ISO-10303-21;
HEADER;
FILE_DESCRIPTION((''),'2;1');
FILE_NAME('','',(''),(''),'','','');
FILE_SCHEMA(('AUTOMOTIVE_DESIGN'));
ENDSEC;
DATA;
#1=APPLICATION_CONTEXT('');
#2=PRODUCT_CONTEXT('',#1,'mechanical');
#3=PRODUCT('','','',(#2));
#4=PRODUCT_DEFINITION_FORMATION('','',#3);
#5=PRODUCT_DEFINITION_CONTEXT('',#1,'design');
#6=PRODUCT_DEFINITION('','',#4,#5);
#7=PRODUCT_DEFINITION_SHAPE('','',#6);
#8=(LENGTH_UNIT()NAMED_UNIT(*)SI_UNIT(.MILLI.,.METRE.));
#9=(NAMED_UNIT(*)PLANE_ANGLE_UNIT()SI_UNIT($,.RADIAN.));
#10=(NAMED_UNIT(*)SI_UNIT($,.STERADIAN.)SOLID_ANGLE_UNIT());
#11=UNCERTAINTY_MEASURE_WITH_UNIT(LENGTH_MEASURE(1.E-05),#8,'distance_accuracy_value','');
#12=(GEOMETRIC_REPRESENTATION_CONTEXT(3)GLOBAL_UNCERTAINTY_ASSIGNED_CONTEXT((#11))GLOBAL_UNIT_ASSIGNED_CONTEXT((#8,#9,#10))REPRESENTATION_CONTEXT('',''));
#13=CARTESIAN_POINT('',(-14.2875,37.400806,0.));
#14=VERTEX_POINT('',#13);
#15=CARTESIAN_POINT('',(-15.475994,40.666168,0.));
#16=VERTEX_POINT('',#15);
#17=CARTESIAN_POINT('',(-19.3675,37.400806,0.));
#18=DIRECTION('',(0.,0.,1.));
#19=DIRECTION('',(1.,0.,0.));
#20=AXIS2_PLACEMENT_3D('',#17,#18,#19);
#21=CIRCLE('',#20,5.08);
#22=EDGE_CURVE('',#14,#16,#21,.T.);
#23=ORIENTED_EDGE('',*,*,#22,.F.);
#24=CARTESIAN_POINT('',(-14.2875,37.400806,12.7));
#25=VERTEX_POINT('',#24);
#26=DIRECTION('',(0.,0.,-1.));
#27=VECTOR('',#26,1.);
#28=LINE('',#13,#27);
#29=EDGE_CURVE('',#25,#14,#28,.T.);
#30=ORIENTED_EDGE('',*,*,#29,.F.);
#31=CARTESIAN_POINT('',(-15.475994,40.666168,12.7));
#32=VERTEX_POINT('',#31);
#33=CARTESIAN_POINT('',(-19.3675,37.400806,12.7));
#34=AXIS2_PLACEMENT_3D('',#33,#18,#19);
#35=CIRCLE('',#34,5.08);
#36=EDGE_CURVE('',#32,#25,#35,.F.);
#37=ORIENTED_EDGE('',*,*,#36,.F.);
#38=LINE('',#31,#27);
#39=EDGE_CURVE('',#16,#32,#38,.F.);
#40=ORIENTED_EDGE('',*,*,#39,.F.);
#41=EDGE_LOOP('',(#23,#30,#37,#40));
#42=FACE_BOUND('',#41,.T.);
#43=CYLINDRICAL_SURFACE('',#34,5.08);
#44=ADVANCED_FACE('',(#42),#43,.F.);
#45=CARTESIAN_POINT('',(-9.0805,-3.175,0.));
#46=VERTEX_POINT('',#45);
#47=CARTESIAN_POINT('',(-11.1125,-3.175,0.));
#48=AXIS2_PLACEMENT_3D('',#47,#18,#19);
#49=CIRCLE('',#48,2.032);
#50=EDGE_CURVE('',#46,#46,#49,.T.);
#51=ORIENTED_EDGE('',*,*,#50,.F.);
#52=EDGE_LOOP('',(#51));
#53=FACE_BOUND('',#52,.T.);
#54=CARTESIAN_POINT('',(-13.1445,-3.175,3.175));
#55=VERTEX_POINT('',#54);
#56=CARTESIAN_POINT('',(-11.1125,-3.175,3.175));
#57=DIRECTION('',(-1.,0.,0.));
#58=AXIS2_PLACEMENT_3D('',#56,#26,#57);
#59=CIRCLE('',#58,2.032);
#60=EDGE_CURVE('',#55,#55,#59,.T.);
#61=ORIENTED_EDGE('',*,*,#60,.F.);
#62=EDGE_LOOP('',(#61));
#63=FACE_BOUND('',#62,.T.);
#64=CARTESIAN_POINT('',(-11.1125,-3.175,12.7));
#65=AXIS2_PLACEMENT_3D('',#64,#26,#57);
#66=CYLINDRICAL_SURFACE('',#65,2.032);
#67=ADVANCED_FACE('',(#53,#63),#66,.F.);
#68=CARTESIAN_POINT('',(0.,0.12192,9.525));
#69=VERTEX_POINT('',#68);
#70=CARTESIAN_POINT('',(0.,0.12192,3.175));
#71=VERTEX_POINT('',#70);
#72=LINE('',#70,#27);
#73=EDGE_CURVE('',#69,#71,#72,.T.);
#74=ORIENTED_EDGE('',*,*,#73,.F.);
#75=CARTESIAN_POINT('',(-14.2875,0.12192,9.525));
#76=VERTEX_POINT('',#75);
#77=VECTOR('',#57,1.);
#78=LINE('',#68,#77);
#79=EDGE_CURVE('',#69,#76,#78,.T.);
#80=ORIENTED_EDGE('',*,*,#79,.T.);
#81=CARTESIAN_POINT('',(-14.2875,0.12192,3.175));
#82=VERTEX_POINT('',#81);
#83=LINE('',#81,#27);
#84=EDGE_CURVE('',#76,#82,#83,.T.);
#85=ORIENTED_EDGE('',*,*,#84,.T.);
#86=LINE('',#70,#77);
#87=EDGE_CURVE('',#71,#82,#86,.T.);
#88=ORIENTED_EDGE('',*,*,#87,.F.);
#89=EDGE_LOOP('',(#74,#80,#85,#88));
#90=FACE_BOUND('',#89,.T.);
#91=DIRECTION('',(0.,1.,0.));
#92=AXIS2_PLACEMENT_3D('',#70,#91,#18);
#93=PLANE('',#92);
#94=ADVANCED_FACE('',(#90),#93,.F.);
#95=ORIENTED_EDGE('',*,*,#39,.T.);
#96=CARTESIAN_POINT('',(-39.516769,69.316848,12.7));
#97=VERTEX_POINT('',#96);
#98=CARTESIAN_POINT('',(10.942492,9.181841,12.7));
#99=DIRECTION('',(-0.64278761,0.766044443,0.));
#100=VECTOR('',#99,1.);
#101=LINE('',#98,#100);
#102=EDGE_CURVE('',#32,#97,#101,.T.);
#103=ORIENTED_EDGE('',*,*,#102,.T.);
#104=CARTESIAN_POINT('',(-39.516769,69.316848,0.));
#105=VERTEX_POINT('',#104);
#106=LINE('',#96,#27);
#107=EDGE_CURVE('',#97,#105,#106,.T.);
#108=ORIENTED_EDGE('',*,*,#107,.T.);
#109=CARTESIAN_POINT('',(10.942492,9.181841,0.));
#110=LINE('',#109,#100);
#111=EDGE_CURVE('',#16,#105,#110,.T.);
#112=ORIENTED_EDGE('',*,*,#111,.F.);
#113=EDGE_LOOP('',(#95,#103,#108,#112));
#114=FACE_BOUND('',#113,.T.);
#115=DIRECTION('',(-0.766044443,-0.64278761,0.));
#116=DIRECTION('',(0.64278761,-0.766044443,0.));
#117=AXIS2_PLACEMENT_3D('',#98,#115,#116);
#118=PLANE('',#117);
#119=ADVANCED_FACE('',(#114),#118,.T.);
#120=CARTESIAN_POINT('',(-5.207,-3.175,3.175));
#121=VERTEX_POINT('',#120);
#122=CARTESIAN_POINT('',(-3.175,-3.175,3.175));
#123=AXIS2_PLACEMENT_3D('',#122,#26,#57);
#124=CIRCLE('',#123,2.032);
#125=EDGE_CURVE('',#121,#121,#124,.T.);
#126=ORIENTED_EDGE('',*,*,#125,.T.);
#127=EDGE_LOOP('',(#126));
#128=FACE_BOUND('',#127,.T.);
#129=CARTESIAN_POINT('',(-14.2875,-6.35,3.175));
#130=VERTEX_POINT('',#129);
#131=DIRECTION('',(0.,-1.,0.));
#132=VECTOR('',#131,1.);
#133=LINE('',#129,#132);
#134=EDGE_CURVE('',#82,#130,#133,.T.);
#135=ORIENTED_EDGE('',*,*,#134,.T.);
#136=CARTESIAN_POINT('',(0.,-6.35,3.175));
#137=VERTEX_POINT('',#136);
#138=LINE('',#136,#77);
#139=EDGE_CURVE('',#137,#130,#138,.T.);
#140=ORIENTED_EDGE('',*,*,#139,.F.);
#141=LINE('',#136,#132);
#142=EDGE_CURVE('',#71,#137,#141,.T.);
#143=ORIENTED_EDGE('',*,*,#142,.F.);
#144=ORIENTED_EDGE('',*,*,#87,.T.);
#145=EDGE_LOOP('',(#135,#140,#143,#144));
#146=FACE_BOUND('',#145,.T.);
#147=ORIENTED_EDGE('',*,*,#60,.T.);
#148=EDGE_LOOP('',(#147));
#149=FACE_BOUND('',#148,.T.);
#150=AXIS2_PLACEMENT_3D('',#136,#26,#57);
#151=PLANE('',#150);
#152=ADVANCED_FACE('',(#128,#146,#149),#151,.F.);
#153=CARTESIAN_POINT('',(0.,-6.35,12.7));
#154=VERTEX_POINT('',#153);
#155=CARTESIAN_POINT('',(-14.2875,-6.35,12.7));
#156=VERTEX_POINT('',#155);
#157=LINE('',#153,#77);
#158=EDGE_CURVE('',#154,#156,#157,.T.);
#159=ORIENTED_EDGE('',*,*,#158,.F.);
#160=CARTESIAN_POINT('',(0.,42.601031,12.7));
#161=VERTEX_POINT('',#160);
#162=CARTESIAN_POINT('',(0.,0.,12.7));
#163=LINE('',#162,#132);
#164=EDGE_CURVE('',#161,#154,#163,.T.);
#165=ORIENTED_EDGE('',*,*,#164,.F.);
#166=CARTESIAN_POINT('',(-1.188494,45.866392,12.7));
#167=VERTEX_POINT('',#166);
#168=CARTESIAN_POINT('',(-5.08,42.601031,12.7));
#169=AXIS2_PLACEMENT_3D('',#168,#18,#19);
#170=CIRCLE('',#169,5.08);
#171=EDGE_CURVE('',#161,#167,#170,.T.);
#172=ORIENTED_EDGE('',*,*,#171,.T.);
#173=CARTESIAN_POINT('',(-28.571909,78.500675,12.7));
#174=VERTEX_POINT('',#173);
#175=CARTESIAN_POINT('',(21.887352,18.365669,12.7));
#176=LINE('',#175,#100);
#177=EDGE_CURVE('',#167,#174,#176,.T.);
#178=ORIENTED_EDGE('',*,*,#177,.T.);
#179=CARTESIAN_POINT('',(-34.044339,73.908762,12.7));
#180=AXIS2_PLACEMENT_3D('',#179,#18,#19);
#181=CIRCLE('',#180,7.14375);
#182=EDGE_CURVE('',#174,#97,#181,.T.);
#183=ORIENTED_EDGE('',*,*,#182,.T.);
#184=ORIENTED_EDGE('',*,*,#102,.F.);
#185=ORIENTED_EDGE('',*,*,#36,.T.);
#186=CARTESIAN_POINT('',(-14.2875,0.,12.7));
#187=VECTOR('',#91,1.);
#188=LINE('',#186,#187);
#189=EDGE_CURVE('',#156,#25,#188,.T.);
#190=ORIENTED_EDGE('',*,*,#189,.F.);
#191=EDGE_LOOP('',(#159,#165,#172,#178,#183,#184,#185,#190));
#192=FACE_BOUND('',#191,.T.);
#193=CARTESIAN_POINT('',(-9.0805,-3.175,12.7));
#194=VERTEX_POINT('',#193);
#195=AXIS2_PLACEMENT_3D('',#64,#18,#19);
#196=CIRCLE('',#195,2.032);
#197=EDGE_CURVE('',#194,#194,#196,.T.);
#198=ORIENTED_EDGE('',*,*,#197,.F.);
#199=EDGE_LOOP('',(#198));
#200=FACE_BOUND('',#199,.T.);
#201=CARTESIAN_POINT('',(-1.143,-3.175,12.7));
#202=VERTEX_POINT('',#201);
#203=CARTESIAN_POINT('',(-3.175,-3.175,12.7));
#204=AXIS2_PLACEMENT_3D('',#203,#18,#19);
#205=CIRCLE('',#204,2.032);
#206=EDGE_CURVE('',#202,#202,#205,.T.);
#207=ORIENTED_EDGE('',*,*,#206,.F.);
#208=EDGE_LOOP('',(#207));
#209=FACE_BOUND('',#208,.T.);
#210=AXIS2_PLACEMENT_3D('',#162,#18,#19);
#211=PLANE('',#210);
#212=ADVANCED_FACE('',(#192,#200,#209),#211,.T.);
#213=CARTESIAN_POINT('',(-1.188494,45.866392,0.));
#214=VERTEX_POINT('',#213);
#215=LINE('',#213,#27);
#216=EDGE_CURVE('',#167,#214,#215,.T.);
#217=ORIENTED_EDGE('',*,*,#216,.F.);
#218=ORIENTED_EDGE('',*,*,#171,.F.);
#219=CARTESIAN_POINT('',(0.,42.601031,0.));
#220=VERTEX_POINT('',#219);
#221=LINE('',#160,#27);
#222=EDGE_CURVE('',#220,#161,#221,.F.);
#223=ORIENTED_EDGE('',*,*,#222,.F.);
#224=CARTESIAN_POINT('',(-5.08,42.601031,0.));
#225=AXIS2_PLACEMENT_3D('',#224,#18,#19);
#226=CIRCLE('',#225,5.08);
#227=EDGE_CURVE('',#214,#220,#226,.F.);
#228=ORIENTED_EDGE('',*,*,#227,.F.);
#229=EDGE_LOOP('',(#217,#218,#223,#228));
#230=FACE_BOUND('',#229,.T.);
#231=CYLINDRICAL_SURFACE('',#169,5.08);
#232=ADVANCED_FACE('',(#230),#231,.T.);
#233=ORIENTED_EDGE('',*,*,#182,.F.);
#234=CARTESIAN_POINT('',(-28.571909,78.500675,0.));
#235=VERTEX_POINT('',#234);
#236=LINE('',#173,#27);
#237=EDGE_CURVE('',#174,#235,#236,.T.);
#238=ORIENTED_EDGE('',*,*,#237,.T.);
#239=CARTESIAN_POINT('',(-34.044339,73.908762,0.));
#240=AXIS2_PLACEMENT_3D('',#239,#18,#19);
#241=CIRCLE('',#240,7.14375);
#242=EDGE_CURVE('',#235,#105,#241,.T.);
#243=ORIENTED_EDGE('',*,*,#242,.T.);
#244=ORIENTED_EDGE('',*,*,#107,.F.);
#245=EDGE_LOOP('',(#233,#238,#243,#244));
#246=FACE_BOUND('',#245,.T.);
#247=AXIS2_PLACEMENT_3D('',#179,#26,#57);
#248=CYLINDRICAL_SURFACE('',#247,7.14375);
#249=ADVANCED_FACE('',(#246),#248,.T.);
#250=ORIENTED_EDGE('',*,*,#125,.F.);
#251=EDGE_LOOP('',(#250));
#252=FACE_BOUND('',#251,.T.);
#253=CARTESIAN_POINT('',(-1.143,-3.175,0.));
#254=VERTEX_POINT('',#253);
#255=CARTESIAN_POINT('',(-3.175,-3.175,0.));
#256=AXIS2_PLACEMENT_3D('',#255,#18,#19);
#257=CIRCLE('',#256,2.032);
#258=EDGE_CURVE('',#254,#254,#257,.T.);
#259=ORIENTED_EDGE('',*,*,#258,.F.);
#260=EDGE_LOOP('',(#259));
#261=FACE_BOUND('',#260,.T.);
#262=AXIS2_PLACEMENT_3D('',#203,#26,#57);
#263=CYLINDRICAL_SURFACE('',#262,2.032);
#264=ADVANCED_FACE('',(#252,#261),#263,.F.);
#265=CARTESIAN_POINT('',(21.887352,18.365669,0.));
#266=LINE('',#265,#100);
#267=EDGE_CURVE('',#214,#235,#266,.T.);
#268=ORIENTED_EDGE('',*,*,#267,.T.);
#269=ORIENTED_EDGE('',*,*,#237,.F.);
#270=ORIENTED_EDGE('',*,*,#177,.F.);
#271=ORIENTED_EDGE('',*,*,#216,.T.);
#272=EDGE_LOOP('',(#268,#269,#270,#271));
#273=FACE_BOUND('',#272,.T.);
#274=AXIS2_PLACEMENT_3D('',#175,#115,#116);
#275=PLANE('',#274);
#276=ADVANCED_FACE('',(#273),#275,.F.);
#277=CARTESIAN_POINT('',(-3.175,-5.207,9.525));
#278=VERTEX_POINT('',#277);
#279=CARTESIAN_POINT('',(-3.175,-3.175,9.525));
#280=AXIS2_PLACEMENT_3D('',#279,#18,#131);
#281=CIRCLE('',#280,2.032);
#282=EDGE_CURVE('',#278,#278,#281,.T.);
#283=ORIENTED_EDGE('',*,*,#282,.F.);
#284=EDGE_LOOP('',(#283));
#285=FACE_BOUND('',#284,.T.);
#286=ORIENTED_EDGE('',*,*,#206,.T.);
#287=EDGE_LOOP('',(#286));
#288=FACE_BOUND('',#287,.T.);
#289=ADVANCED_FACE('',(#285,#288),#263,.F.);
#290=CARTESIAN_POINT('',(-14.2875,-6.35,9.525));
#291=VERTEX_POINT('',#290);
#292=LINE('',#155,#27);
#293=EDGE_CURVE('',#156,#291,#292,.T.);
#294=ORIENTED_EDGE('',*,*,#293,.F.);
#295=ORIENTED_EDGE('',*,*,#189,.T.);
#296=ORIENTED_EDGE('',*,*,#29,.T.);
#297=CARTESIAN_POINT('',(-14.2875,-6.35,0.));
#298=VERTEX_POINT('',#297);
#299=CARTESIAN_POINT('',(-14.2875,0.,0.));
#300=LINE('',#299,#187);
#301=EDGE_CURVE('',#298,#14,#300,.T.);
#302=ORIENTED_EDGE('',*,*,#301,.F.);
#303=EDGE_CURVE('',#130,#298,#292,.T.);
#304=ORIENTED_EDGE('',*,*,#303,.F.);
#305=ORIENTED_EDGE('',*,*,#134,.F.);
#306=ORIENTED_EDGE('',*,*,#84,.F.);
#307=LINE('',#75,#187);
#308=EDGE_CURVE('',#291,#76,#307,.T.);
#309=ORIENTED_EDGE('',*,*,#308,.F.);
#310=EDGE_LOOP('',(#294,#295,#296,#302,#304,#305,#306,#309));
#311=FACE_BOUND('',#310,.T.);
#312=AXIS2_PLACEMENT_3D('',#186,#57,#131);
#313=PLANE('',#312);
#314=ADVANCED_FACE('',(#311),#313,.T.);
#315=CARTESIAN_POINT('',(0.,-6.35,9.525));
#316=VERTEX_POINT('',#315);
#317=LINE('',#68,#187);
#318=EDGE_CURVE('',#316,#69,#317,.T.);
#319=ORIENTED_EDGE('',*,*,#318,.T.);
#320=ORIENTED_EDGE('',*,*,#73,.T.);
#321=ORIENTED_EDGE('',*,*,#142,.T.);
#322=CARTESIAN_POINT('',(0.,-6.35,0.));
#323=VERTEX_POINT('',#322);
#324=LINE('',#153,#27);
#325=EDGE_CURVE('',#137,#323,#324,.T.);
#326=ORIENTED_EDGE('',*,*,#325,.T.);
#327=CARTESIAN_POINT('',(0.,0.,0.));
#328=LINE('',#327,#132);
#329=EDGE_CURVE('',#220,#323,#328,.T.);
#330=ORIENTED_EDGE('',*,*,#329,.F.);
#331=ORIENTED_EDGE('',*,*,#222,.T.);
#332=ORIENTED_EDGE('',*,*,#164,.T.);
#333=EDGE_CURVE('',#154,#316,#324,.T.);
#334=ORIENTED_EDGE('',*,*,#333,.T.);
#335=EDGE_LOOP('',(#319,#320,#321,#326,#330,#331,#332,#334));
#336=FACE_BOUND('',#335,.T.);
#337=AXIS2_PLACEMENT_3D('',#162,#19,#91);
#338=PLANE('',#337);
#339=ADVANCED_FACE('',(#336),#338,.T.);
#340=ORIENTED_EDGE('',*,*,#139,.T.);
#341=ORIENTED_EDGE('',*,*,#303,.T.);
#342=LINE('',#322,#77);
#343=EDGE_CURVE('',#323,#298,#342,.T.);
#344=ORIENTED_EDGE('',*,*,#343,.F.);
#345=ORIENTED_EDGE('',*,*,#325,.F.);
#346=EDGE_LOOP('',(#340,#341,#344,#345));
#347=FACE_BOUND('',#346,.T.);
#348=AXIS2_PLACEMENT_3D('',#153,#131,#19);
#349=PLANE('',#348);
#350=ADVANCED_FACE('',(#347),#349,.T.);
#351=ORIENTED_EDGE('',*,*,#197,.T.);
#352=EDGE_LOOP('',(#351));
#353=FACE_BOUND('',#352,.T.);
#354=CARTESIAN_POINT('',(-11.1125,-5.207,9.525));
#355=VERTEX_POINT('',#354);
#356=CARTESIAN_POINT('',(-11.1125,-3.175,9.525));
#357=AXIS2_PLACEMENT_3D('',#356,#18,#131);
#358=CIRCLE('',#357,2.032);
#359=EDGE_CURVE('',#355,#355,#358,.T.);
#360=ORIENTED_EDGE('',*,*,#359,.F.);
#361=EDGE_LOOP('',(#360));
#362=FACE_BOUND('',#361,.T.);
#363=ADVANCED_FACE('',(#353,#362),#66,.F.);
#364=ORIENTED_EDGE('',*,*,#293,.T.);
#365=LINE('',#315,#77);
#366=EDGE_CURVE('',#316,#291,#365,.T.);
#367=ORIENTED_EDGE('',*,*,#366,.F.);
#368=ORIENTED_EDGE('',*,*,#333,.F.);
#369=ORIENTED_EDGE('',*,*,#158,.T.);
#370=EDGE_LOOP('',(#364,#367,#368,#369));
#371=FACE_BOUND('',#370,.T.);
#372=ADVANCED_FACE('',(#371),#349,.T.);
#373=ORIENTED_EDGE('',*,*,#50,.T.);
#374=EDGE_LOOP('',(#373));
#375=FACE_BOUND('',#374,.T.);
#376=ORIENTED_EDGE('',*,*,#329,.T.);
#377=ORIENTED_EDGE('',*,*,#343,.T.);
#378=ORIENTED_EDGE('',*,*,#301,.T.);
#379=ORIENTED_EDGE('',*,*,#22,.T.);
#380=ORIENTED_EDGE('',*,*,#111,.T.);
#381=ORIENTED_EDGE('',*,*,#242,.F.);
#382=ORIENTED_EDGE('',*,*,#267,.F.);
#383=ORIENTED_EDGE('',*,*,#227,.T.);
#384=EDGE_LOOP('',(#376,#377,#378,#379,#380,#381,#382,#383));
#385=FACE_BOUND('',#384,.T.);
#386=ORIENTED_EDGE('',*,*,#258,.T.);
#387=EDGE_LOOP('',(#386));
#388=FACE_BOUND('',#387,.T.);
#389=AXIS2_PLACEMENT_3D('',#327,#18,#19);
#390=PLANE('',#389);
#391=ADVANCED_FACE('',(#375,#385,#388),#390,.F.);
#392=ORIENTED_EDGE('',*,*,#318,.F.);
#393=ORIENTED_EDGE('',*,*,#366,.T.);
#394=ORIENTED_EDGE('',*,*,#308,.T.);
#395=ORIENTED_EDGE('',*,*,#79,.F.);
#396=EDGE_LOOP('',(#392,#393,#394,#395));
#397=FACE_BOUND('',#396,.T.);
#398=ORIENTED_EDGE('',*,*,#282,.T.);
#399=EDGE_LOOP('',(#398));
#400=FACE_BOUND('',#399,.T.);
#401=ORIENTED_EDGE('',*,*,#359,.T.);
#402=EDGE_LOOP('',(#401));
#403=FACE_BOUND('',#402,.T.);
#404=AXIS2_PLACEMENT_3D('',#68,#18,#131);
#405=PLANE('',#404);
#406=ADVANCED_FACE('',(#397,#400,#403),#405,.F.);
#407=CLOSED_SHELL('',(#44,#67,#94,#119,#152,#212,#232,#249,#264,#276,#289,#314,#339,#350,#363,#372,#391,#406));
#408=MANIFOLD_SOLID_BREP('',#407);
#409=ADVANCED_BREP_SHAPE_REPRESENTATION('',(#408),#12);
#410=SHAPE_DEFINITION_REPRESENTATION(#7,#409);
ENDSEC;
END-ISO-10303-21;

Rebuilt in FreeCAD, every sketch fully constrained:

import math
import FreeCAD as App
import Part
import Sketcher
Q = App.Units.Quantity


def edges_at(feature, points):
    """Names of the edges that pass closest to the given points."""
    edges = feature.Shape.Edges
    near = lambda p: min(range(len(edges)), key=lambda i: edges[i].distToShape(Part.Vertex(*p))[0])
    return sorted({f"Edge{near(p) + 1}" for p in points})


def add_polygon(sketch, points):
    """Adds a closed chain of lines whose ends are joined by coincident constraints."""
    first, n = sketch.GeometryCount, len(points)
    for a, b in zip(points, points[1:] + points[:1]):
        sketch.addGeometry(Part.LineSegment(App.Vector(*a, 0), App.Vector(*b, 0)), False)
    for i in range(n):
        sketch.addConstraint(Sketcher.Constraint("Coincident", first + i, 2, first + (i + 1) % n, 1))

doc = App.newDocument("Part")
body = doc.addObject("PartDesign::Body", "Body")

# Sketch on XY plane
sketch1 = doc.addObject("Sketcher::SketchObject", "Sketch")
body.addObject(sketch1)
sketch1.AttachmentSupport = (doc.XY_Plane, [""])
sketch1.MapMode = "FlatFace"
sketch1.addGeometry(Part.LineSegment(App.Vector(-14.2875, -6.35, 0), App.Vector(0, -6.35, 0)), False)
sketch1.addGeometry(Part.LineSegment(App.Vector(0, -6.35, 0), App.Vector(0, 44.45, 0)), False)
sketch1.addGeometry(Part.LineSegment(App.Vector(0, 44.45, 0), App.Vector(-28.571909, 78.500675, 0)), False)
sketch1.addGeometry(Part.ArcOfCircle(Part.Circle(App.Vector(-34.044339, 73.908762, 0), App.Vector(0, 0, 1), 7.14375), math.radians(40), math.radians(220)), False)
sketch1.addGeometry(Part.LineSegment(App.Vector(-39.516769, 69.316848, 0), App.Vector(-14.2875, 39.249775, 0)), False)
sketch1.addGeometry(Part.LineSegment(App.Vector(-14.2875, 39.249775, 0), App.Vector(-14.2875, -6.35, 0)), False)
sketch1.addGeometry(Part.Circle(App.Vector(-3.175, -3.175, 0), App.Vector(0, 0, 1), 2.032), False)
sketch1.addGeometry(Part.Circle(App.Vector(-11.1125, -3.175, 0), App.Vector(0, 0, 1), 2.032), False)
sketch1.addConstraint(Sketcher.Constraint("Coincident", 0, 2, 1, 1))
sketch1.addConstraint(Sketcher.Constraint("Coincident", 1, 2, 2, 1))
sketch1.addConstraint(Sketcher.Constraint("Tangent", 2, 2, 3, 1))
sketch1.addConstraint(Sketcher.Constraint("Tangent", 3, 2, 4, 1))
sketch1.addConstraint(Sketcher.Constraint("Coincident", 4, 2, 5, 1))
sketch1.addConstraint(Sketcher.Constraint("Coincident", 5, 2, 0, 1))
sketch1.addConstraint(Sketcher.Constraint("Horizontal", 0))
sketch1.addConstraint(Sketcher.Constraint("Vertical", 1))
sketch1.addConstraint(Sketcher.Constraint("Vertical", 5))
sketch1.addConstraint(Sketcher.Constraint("Equal", 6, 7))
sketch1.addConstraint(Sketcher.Constraint("PointOnObject", 0, 2, -2))
sketch1.addConstraint(Sketcher.Constraint("Parallel", 2, 4))
sketch1.addConstraint(Sketcher.Constraint("Horizontal", 6, 3, 7, 3))
sketch1.addConstraint(Sketcher.Constraint("Diameter", 6, Q("0.16 in")))
sketch1.addConstraint(Sketcher.Constraint("DistanceY", 1, 1, 1, 2, Q("2 in")))
sketch1.addConstraint(Sketcher.Constraint("Angle", 2, Q("130 deg")))
sketch1.addConstraint(Sketcher.Constraint("Radius", 3, Q("0.28125 in")))
sketch1.addConstraint(Sketcher.Constraint("Distance", 2, Q("1.75 in")))
sketch1.addConstraint(Sketcher.Constraint("DistanceX", 0, 1, 0, 2, Q("0.5625 in")))
sketch1.addConstraint(Sketcher.Constraint("DistanceY", 0, 2, -1, 1, Q("0.25 in")))
sketch1.addConstraint(Sketcher.Constraint("DistanceX", 6, 3, -1, 1, Q("0.125 in")))
sketch1.addConstraint(Sketcher.Constraint("DistanceY", 6, 3, -1, 1, Q("0.125 in")))
sketch1.addConstraint(Sketcher.Constraint("DistanceX", 7, 3, -1, 1, Q("0.4375 in")))
pad1 = doc.addObject("PartDesign::Pad", "Pad")
body.addObject(pad1)
pad1.Profile = sketch1
pad1.Length = Q("0.5 in")

# Sketch on YZ plane
sketch2 = doc.addObject("Sketcher::SketchObject", "Sketch001")
body.addObject(sketch2)
sketch2.AttachmentSupport = (doc.YZ_Plane, [""])
sketch2.MapMode = "FlatFace"
sketch2.AttachmentOffset = App.Placement(App.Vector(0, 0, -0.5625 * 25.4), App.Rotation())
add_polygon(sketch2, [(0.12192, 3.175), (-6.35, 3.175), (-6.35, 9.525), (0.12192, 9.525)])  # lines 0-3
sketch2.addConstraint(Sketcher.Constraint("Horizontal", 0))
sketch2.addConstraint(Sketcher.Constraint("Vertical", 1))
sketch2.addConstraint(Sketcher.Constraint("Horizontal", 2))
sketch2.addConstraint(Sketcher.Constraint("Vertical", 3))
sketch2.addConstraint(Sketcher.Constraint("DistanceY", 1, 1, 1, 2, Q("0.25 in")))
sketch2.addConstraint(Sketcher.Constraint("DistanceX", 0, 2, -1, 1, Q("0.25 in")))
sketch2.addConstraint(Sketcher.Constraint("DistanceX", 0, 2, 0, 1, Q("0.2548 in")))
sketch2.addConstraint(Sketcher.Constraint("DistanceY", -1, 1, 0, 2, Q("0.125 in")))
pocket1 = doc.addObject("PartDesign::Pocket", "Pocket")
body.addObject(pocket1)
pocket1.Profile = sketch2
pocket1.Type = "ThroughAll"
pocket1.Reversed = True
doc.recompute()

fillet = doc.addObject("PartDesign::Fillet", "Fillet")
body.addObject(fillet)
fillet.Base = (pocket1, edges_at(pocket1, [(0, 44.45, 6.35), (-14.287, 39.25, 6.35)]))
fillet.Radius = Q("0.2 in")

doc.recompute()
